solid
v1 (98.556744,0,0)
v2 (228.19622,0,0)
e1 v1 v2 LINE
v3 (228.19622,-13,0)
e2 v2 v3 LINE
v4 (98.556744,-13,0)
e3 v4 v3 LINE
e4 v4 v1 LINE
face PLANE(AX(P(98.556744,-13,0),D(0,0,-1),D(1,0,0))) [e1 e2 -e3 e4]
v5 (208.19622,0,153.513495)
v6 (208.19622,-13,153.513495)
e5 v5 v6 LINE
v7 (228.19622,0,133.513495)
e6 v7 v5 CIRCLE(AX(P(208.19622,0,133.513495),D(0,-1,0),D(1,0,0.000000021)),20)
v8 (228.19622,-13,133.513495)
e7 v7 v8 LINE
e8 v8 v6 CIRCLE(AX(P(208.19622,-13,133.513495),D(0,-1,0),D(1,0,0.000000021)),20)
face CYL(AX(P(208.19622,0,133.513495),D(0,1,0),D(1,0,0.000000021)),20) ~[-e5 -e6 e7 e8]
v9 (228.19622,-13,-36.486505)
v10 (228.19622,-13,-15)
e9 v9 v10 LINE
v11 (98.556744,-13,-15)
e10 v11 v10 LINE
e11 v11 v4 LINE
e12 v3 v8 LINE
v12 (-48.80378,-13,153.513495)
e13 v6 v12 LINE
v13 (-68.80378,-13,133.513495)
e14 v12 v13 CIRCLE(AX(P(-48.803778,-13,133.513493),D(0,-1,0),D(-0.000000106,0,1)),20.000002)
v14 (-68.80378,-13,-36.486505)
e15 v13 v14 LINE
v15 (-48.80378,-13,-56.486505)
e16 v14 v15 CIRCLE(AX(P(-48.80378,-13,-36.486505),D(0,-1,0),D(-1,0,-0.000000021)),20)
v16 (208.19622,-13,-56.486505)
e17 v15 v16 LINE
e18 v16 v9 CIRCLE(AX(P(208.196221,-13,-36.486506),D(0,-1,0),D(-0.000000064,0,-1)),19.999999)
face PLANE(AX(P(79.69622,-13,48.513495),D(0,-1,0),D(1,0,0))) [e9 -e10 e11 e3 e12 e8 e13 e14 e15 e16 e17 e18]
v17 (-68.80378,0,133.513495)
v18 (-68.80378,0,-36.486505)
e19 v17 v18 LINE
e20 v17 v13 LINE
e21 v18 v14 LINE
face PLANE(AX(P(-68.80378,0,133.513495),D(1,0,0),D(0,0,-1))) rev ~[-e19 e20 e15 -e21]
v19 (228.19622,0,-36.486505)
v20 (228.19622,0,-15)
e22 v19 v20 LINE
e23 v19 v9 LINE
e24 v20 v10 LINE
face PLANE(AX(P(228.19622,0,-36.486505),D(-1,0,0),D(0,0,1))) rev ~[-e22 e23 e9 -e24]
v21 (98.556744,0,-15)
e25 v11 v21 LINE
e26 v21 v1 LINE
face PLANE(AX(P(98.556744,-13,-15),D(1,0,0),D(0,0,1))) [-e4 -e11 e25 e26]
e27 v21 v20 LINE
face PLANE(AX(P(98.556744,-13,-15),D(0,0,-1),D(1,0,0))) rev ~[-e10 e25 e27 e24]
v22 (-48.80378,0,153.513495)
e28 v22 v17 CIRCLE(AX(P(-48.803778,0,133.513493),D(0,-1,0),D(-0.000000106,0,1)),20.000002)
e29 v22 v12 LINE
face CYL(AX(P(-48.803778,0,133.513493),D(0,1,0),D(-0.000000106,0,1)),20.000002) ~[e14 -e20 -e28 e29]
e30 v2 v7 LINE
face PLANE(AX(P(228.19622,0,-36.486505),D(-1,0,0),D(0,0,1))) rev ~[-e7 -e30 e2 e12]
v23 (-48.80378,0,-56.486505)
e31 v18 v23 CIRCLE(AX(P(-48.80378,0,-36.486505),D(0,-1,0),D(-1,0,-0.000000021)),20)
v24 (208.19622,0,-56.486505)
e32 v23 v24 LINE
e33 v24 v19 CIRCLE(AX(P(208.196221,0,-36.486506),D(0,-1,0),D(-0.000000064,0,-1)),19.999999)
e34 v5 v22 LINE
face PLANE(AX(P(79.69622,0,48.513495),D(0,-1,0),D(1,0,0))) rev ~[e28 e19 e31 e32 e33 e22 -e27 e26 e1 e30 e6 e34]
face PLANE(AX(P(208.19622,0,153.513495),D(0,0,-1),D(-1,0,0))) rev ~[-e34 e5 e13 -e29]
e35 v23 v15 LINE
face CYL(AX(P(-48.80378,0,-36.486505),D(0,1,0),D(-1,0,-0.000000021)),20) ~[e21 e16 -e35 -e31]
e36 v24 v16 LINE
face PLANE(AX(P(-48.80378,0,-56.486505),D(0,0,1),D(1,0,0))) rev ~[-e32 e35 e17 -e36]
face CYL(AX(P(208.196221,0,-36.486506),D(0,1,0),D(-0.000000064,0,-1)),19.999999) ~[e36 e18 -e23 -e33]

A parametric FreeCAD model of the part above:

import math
import FreeCAD as App
import Part
import Sketcher

V = App.Vector


def add_polygon(sketch, points):
    """Adds a closed chain of lines whose ends are joined by coincident constraints."""
    first, n = sketch.GeometryCount, len(points)
    for a, b in zip(points, points[1:] + points[:1]):
        sketch.addGeometry(Part.LineSegment(App.Vector(*a, 0), App.Vector(*b, 0)), False)
    for i in range(n):
        sketch.addConstraint(Sketcher.Constraint("Coincident", first + i, 2, first + (i + 1) % n, 1))

doc = App.newDocument("Part")
body = doc.addObject("PartDesign::Body", "Body")

# Sketch on XZ plane
sketch1 = body.newObject("Sketcher::SketchObject", "Sketch")
sketch1.AttachmentSupport = (doc.getObject("XZ_Plane"), [""])
sketch1.MapMode = "FlatFace"
sketch1.addGeometry([
    Part.LineSegment(V(208, 154, 0), V(-49, 154, 0)),  # 0
    Part.ArcOfCircle(Part.Circle(V(-49, 134, 0), V(0, 0, 1), 20), math.radians(90), math.radians(180)),  # 1
    Part.LineSegment(V(-69, 134, 0), V(-69, -36, 0)),  # 2
    Part.ArcOfCircle(Part.Circle(V(-49, -36, 0), V(0, 0, 1), 20), math.radians(-180), math.radians(-90)),  # 3
    Part.LineSegment(V(-49, -56, 0), V(208, -56, 0)),  # 4
    Part.ArcOfCircle(Part.Circle(V(208, -36, 0), V(0, 0, 1), 20), math.radians(-90), math.radians(0)),  # 5
    Part.LineSegment(V(228, -36, 0), V(228, 134, 0)),  # 6
    Part.ArcOfCircle(Part.Circle(V(208, 134, 0), V(0, 0, 1), 20), math.radians(0), math.radians(90)),  # 7
], False)
sketch1.addConstraint([
    Sketcher.Constraint("Tangent", 0, 2, 1, 1),
    Sketcher.Constraint("Tangent", 1, 2, 2, 1),
    Sketcher.Constraint("Tangent", 2, 2, 3, 1),
    Sketcher.Constraint("Tangent", 3, 2, 4, 1),
    Sketcher.Constraint("Tangent", 4, 2, 5, 1),
    Sketcher.Constraint("Tangent", 5, 2, 6, 1),
    Sketcher.Constraint("Tangent", 6, 2, 7, 1),
    Sketcher.Constraint("Tangent", 7, 2, 0, 1),
    Sketcher.Constraint("Horizontal", 0),
    Sketcher.Constraint("Vertical", 2),
    Sketcher.Constraint("Horizontal", 4),
    Sketcher.Constraint("Vertical", 6),
    Sketcher.Constraint("Equal", 1, 3),
    Sketcher.Constraint("Equal", 3, 5),
    Sketcher.Constraint("Equal", 5, 7),
    Sketcher.Constraint("Radius", 3, 20.0),
    Sketcher.Constraint("DistanceX", 0, 2, 0, 1, 257.0),
    Sketcher.Constraint("DistanceY", 2, 2, 2, 1, 170.0),
    Sketcher.Constraint("DistanceX", 3, 3, -1, 1, 48.80378),
    Sketcher.Constraint("DistanceY", -1, 1, 1, 3, 133.513493),
])
pad1 = body.newObject("PartDesign::Pad", "Pad")
pad1.Profile = sketch1
pad1.Length = 13

# Sketch on XZ plane
sketch2 = body.newObject("Sketcher::SketchObject", "Sketch001")
sketch2.AttachmentSupport = (doc.getObject("XZ_Plane"), [""])
sketch2.MapMode = "FlatFace"
sketch2.AttachmentOffset = App.Placement(V(0, 0, 13), App.Rotation())
add_polygon(sketch2, [(99, 0), (99, -15), (229, -15), (229, 0)])  # lines 0-3
sketch2.addConstraint([
    Sketcher.Constraint("Vertical", 0),
    Sketcher.Constraint("Horizontal", 1),
    Sketcher.Constraint("Vertical", 2),
    Sketcher.Constraint("Horizontal", 3),
    Sketcher.Constraint("PointOnObject", 2, 2, -1),
    Sketcher.Constraint("DistanceX", 1, 1, 1, 2, 130.0),
    Sketcher.Constraint("DistanceY", 0, 2, 0, 1, 15.0),
    Sketcher.Constraint("DistanceX", -1, 1, 0, 2, 98.556744),
])
pocket1 = body.newObject("PartDesign::Pocket", "Pocket")
pocket1.Profile = sketch2
pocket1.Length = 25

doc.recompute()
